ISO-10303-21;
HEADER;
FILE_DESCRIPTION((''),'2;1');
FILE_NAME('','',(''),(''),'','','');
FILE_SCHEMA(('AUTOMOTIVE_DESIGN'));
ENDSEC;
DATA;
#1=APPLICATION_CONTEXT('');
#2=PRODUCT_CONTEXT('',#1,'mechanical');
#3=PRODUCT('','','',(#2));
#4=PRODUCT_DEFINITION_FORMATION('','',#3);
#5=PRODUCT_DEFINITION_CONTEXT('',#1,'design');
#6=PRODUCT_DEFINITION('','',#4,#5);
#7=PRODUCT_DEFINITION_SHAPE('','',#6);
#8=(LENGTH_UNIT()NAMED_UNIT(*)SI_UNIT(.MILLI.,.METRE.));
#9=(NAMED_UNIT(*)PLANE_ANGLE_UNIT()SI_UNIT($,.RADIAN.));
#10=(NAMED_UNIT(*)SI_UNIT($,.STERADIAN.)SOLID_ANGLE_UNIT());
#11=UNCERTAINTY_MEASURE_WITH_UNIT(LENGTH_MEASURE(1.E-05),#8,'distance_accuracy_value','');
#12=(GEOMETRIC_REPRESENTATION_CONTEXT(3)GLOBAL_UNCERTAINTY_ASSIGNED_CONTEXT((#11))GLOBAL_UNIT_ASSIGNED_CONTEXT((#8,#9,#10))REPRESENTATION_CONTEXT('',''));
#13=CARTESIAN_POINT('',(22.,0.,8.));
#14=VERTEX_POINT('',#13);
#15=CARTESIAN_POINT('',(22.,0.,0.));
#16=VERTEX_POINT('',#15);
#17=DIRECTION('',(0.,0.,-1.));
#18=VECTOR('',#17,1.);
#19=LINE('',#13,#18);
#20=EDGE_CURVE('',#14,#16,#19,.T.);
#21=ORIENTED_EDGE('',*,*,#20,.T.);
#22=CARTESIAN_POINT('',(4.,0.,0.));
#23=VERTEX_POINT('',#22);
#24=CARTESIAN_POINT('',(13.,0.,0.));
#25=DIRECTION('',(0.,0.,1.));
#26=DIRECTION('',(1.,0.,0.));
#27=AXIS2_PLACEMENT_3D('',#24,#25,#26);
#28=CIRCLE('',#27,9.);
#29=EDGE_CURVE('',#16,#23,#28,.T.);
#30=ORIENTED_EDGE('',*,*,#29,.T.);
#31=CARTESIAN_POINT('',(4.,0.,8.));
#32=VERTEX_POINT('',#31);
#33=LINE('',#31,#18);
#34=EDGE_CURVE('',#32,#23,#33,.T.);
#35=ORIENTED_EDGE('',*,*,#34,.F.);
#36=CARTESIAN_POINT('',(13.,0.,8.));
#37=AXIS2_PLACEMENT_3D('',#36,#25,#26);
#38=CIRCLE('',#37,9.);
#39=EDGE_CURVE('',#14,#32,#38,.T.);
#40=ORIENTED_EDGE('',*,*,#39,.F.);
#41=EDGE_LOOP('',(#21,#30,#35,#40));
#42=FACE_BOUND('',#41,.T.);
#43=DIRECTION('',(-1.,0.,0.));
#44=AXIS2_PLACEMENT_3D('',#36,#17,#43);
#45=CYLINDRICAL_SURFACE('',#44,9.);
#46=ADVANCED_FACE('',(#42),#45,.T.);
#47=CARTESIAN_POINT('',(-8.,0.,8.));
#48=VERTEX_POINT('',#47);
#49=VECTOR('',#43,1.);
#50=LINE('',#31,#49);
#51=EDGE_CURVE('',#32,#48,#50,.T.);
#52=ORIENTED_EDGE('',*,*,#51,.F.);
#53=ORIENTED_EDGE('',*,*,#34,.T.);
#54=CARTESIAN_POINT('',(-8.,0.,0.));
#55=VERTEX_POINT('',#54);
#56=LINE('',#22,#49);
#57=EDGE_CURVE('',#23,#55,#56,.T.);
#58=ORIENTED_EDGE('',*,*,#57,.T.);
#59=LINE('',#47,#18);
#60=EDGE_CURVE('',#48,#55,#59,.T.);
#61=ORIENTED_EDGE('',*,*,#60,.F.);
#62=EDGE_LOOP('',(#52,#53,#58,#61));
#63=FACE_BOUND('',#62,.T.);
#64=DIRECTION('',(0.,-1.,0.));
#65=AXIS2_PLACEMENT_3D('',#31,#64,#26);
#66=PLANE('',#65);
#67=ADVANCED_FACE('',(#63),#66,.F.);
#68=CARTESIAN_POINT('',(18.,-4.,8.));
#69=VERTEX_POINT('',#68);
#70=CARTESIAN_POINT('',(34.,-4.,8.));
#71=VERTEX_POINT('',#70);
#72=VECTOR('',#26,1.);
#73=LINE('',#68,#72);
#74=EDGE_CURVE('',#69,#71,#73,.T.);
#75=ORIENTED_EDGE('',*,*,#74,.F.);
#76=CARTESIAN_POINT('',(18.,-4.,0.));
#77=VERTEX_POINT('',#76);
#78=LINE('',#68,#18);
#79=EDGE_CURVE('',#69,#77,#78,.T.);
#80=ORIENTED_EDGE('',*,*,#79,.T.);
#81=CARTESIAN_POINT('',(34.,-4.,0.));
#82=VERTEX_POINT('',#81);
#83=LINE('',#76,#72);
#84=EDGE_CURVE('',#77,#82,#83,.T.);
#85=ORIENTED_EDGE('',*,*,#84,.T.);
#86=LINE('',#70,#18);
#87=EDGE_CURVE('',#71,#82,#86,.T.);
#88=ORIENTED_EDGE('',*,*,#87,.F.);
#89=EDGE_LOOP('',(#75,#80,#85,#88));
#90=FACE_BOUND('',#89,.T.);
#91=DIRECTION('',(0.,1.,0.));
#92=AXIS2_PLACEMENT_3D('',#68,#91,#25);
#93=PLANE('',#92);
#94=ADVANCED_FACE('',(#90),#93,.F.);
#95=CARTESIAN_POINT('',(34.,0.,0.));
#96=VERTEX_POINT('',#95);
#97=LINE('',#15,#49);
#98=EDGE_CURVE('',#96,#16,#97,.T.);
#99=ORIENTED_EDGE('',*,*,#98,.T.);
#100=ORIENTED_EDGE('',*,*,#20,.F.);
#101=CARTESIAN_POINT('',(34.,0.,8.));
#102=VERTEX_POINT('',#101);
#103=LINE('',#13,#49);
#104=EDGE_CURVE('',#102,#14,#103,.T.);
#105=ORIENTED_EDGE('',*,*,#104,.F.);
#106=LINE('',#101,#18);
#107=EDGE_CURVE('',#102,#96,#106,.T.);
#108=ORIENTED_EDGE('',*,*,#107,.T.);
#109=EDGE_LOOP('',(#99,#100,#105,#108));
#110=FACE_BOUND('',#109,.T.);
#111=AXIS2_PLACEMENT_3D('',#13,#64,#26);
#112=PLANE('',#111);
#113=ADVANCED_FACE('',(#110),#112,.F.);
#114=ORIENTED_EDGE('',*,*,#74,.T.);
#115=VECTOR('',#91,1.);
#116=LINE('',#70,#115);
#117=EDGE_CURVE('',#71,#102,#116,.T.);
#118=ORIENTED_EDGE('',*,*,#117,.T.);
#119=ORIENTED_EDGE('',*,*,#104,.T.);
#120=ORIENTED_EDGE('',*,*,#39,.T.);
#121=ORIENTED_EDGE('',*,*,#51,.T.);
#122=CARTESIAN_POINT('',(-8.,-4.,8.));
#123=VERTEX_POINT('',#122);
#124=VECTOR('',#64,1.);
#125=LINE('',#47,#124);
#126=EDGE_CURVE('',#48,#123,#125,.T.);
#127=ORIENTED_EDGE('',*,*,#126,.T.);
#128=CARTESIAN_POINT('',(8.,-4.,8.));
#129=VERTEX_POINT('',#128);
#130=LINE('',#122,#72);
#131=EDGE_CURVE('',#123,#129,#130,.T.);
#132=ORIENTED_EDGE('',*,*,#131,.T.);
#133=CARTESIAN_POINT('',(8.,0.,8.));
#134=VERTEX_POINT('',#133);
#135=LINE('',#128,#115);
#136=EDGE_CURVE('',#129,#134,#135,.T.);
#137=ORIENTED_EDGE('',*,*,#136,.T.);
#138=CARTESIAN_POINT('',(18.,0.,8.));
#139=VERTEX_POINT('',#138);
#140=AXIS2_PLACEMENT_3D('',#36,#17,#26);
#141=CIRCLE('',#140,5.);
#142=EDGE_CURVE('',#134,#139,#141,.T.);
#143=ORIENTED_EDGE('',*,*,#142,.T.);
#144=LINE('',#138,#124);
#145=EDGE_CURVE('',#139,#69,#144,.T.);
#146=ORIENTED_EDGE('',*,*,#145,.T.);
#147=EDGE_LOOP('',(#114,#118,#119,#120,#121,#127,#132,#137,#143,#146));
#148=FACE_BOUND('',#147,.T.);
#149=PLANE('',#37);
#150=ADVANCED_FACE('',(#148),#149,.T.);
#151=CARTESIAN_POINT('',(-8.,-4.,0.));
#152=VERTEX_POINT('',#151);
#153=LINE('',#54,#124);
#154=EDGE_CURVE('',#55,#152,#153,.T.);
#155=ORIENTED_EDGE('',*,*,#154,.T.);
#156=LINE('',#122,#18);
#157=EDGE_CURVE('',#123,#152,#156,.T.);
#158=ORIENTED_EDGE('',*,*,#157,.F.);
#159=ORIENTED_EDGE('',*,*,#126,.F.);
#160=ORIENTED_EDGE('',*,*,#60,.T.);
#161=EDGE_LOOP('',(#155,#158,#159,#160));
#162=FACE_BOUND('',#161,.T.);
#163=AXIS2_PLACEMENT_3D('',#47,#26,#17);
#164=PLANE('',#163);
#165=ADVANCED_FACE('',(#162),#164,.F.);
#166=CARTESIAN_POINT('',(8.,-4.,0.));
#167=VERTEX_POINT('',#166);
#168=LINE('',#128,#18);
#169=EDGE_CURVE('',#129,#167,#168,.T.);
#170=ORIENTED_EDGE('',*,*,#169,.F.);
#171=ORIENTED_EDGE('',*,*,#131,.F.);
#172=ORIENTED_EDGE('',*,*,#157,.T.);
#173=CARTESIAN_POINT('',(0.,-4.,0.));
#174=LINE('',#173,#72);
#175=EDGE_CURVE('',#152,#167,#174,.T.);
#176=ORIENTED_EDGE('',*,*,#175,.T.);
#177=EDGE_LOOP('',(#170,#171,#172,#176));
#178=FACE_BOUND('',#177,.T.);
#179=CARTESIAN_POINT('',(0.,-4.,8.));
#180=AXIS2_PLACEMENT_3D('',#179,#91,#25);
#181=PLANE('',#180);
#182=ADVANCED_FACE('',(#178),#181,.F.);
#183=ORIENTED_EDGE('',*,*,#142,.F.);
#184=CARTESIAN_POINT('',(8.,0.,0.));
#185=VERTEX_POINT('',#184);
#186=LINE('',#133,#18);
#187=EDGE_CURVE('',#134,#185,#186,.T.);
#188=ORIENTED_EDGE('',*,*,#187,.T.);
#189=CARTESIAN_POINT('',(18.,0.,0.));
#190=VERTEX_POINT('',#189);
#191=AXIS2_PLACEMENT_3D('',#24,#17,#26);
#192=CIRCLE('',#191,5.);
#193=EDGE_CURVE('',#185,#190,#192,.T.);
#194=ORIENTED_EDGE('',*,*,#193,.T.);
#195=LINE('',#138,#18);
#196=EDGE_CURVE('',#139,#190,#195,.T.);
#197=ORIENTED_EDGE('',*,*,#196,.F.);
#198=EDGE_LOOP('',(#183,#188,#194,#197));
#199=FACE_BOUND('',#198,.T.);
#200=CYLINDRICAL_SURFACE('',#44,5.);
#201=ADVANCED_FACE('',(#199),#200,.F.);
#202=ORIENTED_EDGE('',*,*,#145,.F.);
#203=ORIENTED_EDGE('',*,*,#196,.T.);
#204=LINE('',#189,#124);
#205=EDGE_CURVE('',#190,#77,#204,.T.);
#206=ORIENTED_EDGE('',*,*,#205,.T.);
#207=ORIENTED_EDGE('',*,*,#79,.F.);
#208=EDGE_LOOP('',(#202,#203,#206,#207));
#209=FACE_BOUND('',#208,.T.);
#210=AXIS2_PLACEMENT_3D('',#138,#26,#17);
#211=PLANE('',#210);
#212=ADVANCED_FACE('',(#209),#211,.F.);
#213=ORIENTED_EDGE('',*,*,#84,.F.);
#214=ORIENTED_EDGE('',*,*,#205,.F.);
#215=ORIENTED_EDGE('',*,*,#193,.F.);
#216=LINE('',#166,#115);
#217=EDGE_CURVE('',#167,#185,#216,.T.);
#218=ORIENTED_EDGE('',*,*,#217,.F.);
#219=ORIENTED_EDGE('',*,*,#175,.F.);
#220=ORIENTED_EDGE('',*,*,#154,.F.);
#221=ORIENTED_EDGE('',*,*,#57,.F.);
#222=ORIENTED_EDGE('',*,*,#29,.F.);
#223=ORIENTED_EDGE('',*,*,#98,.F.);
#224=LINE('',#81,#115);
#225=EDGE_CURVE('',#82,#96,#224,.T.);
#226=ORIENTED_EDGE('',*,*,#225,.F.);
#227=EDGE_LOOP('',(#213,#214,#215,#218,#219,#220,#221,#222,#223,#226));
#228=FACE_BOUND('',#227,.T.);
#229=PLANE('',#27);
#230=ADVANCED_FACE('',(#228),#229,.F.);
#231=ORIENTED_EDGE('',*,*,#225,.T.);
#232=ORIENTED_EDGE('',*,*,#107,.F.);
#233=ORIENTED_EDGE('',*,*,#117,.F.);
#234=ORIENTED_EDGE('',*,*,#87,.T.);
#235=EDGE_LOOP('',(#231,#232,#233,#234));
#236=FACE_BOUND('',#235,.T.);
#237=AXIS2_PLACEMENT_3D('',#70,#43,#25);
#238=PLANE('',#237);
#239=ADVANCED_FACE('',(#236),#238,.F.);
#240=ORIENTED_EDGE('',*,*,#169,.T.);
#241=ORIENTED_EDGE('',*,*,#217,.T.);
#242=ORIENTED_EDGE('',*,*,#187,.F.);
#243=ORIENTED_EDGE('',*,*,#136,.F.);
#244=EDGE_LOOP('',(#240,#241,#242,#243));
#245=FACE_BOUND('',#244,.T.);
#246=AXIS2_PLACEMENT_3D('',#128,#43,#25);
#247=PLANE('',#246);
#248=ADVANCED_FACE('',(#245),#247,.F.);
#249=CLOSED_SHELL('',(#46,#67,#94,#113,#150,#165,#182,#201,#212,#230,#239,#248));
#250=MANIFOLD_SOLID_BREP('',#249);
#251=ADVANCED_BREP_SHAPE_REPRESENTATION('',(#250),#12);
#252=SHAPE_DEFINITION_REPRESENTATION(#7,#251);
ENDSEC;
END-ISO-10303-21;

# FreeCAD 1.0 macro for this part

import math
import FreeCAD as App
import Part
import Sketcher

doc = App.newDocument("Part")
body = doc.addObject("PartDesign::Body", "Body")

# Sketch on XY plane
sketch1 = body.newObject("Sketcher::SketchObject", "Sketch")
sketch1.AttachmentSupport = (doc.getObject("XY_Plane"), [""])
sketch1.MapMode = "FlatFace"
sketch1.addGeometry([
    Part.LineSegment(App.Vector(8, -4, 0), App.Vector(8, 0, 0)),  # 0
    Part.ArcOfCircle(Part.Circle(App.Vector(13, 0, 0), App.Vector(0, 0, 1), 5), math.radians(0), math.radians(180)),  # 1
    Part.LineSegment(App.Vector(18, 0, 0), App.Vector(18, -4, 0)),  # 2
    Part.LineSegment(App.Vector(18, -4, 0), App.Vector(34, -4, 0)),  # 3
    Part.LineSegment(App.Vector(34, -4, 0), App.Vector(34, 0, 0)),  # 4
    Part.LineSegment(App.Vector(34, 0, 0), App.Vector(22, 0, 0)),  # 5
    Part.ArcOfCircle(Part.Circle(App.Vector(13, 0, 0), App.Vector(0, 0, 1), 9), math.radians(0), math.radians(180)),  # 6
    Part.LineSegment(App.Vector(4, 0, 0), App.Vector(-8, 0, 0)),  # 7
    Part.LineSegment(App.Vector(-8, 0, 0), App.Vector(-8, -4, 0)),  # 8
    Part.LineSegment(App.Vector(-8, -4, 0), App.Vector(8, -4, 0)),  # 9
], False)
sketch1.addConstraint([
    Sketcher.Constraint("Tangent", 0, 2, 1, 2),
    Sketcher.Constraint("Tangent", 1, 1, 2, 1),
    Sketcher.Constraint("Coincident", 2, 2, 3, 1),
    Sketcher.Constraint("Coincident", 3, 2, 4, 1),
    Sketcher.Constraint("Coincident", 4, 2, 5, 1),
    Sketcher.Constraint("Coincident", 5, 2, 6, 1),
    Sketcher.Constraint("Coincident", 6, 2, 7, 1),
    Sketcher.Constraint("Coincident", 7, 2, 8, 1),
    Sketcher.Constraint("Coincident", 8, 2, 9, 1),
    Sketcher.Constraint("Coincident", 9, 2, 0, 1),
    Sketcher.Constraint("Vertical", 0),
    Sketcher.Constraint("Vertical", 2),
    Sketcher.Constraint("Horizontal", 3),
    Sketcher.Constraint("Vertical", 4),
    Sketcher.Constraint("Horizontal", 5),
    Sketcher.Constraint("Horizontal", 7),
    Sketcher.Constraint("Vertical", 8),
    Sketcher.Constraint("Horizontal", 9),
    Sketcher.Constraint("Coincident", 6, 3, 1, 3),
    Sketcher.Constraint("Symmetric", 0, 2, 7, 2, -1, 1),
    Sketcher.Constraint("PointOnObject", 1, 3, -1),
    Sketcher.Constraint("PointOnObject", 4, 2, -1),
    Sketcher.Constraint("Horizontal", 3, 2, 8, 2),
    Sketcher.Constraint("Equal", 5, 7),
    Sketcher.Constraint("Radius", 1, 5.0),
    Sketcher.Constraint("Radius", 6, 9.0),
    Sketcher.Constraint("DistanceX", 3, 1, 3, 2, 16.0),
    Sketcher.Constraint("DistanceY", 0, 1, 0, 2, 4.0),
])
pad1 = body.newObject("PartDesign::Pad", "Pad")
pad1.Profile = sketch1
pad1.Length = 8

doc.recompute()
